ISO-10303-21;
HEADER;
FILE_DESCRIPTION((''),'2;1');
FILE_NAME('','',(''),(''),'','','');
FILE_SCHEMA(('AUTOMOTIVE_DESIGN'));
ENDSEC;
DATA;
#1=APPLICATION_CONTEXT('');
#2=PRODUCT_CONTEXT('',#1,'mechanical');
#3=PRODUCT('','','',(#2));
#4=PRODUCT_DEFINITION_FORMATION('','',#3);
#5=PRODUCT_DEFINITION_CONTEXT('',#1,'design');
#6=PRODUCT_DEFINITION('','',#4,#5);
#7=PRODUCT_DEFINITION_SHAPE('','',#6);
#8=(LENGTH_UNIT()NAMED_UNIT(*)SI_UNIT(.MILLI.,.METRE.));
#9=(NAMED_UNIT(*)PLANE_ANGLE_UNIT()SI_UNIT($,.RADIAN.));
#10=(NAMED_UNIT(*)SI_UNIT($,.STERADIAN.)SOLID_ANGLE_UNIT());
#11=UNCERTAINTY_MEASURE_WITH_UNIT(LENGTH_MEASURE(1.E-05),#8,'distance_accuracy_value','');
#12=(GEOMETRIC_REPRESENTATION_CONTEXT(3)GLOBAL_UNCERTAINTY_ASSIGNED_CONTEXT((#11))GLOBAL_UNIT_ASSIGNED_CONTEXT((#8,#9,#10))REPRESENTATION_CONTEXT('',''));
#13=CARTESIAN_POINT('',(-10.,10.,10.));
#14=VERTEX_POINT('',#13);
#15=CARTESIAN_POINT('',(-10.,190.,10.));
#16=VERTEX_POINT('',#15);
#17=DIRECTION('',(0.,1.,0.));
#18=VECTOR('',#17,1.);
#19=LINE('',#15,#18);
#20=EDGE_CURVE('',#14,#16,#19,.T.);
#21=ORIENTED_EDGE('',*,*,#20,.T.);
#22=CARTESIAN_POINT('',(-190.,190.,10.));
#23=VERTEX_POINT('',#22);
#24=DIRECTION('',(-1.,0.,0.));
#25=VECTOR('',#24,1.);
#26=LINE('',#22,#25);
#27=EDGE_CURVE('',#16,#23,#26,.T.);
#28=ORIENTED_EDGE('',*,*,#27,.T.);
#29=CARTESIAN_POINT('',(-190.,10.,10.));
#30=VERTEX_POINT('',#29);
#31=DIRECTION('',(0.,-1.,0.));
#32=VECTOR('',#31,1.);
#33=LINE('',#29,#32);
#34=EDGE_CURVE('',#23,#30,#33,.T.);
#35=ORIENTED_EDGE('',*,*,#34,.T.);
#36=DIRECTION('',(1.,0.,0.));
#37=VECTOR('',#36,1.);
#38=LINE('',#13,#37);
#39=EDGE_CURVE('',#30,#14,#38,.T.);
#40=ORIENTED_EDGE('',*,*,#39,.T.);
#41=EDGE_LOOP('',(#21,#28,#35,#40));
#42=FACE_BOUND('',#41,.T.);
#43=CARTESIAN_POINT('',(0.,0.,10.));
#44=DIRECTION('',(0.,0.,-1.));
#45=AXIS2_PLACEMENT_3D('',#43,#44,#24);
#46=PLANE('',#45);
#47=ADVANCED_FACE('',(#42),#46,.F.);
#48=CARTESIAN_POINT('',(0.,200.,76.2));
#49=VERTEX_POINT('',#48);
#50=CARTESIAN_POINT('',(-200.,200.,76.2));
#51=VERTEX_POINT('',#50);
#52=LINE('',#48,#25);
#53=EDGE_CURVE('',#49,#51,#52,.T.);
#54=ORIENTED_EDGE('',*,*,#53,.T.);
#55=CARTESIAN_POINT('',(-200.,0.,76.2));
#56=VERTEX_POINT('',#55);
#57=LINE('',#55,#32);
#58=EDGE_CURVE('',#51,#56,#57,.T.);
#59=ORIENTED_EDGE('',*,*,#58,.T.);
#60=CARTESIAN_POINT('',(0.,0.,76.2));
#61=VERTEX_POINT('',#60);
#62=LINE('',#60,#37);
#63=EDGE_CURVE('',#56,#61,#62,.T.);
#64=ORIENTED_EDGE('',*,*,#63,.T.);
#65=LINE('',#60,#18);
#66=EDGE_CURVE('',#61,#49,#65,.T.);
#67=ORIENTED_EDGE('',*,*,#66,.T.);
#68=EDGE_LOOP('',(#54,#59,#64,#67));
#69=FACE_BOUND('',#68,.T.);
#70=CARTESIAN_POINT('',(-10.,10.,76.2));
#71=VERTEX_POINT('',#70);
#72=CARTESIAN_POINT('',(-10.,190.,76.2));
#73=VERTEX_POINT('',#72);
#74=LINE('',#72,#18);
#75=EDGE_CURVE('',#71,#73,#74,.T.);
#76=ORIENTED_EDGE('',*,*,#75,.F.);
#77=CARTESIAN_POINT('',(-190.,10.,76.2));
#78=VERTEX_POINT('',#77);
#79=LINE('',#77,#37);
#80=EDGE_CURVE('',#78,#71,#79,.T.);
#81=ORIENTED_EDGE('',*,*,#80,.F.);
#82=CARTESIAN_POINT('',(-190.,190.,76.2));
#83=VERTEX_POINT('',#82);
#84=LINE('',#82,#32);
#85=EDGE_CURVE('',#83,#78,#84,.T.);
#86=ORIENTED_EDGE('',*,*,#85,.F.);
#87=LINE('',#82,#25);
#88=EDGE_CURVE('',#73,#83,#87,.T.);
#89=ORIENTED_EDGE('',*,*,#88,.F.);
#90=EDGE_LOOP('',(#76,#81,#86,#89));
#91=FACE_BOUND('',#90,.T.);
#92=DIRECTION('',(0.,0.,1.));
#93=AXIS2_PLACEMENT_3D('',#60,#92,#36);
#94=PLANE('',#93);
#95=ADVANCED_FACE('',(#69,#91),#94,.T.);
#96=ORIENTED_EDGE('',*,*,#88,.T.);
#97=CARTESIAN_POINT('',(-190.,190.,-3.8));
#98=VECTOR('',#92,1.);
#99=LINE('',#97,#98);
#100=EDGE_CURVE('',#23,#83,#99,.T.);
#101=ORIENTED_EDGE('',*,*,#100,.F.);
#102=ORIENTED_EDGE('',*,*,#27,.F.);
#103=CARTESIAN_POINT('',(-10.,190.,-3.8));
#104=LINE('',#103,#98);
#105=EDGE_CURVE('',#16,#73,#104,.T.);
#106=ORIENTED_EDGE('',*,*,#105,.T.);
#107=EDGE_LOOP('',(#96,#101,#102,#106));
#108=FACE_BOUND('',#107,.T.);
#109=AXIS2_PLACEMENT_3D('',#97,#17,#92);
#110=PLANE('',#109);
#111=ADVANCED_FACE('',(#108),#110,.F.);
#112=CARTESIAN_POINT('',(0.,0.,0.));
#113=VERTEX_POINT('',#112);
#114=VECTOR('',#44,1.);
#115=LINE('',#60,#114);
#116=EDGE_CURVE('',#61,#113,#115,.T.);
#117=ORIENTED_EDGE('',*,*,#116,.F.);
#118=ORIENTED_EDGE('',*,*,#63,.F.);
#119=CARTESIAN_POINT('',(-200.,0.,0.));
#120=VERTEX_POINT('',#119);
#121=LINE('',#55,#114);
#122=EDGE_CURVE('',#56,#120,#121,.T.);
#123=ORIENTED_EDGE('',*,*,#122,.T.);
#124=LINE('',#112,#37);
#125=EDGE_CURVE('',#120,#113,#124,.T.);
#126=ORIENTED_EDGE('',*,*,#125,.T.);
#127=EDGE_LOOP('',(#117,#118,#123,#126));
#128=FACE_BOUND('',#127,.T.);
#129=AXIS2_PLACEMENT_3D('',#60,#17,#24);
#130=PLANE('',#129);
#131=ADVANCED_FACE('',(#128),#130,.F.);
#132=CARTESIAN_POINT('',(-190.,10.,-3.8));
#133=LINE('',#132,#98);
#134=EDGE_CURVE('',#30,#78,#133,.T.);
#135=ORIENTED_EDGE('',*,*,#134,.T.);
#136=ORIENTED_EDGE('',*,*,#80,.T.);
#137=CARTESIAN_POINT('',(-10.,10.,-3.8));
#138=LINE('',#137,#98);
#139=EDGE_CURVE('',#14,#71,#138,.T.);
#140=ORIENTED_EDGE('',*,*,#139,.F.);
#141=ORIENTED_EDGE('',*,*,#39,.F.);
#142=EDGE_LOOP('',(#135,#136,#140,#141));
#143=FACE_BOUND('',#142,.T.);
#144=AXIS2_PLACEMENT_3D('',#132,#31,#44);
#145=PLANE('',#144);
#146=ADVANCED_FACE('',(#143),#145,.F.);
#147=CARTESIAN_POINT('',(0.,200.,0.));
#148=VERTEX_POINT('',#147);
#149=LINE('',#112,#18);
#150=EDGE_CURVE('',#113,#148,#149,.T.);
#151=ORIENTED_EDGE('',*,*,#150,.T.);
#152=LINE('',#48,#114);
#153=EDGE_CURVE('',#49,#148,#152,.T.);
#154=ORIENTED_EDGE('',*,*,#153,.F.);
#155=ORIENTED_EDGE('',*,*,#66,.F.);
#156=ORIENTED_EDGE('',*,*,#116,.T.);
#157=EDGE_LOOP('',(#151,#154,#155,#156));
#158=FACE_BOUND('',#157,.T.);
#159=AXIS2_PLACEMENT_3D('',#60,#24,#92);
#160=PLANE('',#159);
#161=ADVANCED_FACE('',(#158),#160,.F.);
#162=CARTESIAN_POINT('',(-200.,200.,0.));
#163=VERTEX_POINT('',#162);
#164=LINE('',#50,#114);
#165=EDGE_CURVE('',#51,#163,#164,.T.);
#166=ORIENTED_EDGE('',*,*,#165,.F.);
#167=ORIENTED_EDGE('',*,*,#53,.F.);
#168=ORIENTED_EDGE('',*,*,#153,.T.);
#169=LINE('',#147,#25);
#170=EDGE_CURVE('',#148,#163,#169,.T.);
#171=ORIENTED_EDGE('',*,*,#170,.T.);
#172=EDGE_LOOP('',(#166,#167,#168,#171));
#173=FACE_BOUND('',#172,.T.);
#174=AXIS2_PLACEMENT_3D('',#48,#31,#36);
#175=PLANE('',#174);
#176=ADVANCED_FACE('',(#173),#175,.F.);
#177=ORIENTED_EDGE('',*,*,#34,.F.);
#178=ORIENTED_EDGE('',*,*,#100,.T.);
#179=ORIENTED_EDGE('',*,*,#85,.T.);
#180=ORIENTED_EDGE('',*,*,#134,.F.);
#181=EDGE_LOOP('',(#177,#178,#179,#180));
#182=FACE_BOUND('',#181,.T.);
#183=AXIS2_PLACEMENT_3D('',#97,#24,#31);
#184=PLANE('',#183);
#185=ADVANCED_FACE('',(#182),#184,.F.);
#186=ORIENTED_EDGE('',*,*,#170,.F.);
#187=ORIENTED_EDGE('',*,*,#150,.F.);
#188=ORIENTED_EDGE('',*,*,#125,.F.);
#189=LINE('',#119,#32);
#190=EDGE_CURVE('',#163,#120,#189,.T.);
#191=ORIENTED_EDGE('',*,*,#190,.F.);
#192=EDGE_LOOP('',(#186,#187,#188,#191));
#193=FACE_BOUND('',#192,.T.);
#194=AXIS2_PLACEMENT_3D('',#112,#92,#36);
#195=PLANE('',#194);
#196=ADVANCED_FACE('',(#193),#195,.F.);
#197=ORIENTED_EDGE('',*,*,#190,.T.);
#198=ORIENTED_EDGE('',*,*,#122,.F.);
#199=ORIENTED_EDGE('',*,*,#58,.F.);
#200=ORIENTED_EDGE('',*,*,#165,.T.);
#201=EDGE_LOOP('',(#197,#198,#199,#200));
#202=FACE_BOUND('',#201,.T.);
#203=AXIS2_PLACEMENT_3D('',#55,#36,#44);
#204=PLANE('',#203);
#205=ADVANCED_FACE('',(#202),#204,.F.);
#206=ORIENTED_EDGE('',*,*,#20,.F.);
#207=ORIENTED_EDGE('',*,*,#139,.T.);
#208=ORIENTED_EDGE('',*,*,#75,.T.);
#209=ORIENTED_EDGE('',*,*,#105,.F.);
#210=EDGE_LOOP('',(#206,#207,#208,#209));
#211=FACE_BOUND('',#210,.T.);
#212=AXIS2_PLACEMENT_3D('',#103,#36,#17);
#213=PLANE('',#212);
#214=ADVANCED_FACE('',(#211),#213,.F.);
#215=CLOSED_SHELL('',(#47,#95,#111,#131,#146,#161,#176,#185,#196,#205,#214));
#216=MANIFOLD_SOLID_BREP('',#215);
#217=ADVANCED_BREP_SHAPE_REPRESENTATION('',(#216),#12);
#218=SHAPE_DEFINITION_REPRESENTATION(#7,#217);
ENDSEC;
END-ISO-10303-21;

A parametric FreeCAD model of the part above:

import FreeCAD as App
import Part
import Sketcher
Q = App.Units.Quantity

doc = App.newDocument("Part")
body = doc.addObject("PartDesign::Body", "Body")

# Sketch on XY plane
sketch1 = doc.addObject("Sketcher::SketchObject", "Sketch")
body.addObject(sketch1)
sketch1.AttachmentSupport = (doc.XY_Plane, [""])
sketch1.MapMode = "FlatFace"
sketch1.addGeometry([
    Part.LineSegment(App.Vector(-200, 200, 0), App.Vector(-200, 0, 0)),
    Part.LineSegment(App.Vector(-200, 0, 0), App.Vector(0, 0, 0)),
    Part.LineSegment(App.Vector(0, 0, 0), App.Vector(0, 200, 0)),
    Part.LineSegment(App.Vector(0, 200, 0), App.Vector(-200, 200, 0)),
], False)
sketch1.addConstraint([
    Sketcher.Constraint("Coincident", 0, 2, 1, 1),
    Sketcher.Constraint("Coincident", 1, 2, 2, 1),
    Sketcher.Constraint("Coincident", 2, 2, 3, 1),
    Sketcher.Constraint("Coincident", 3, 2, 0, 1),
    Sketcher.Constraint("Vertical", 0),
    Sketcher.Constraint("Horizontal", 1),
    Sketcher.Constraint("Vertical", 2),
    Sketcher.Constraint("Horizontal", 3),
    Sketcher.Constraint("Coincident", 1, 2, -1, 1),
    Sketcher.Constraint("Equal", 3, 0),
    Sketcher.Constraint("DistanceX", 1, 1, 1, 2, Q("200 mm")),
])
pad1 = doc.addObject("PartDesign::Pad", "Pad")
body.addObject(pad1)
pad1.Profile = sketch1
pad1.Length = 76.2

# Sketch on XY plane
sketch2 = doc.addObject("Sketcher::SketchObject", "Sketch001")
body.addObject(sketch2)
sketch2.AttachmentSupport = (doc.XY_Plane, [""])
sketch2.MapMode = "FlatFace"
sketch2.AttachmentOffset = App.Placement(App.Vector(0, 0, 76.2), App.Rotation())
sketch2.addGeometry([
    Part.LineSegment(App.Vector(-190, 190, 0), App.Vector(-190, 10, 0)),
    Part.LineSegment(App.Vector(-190, 10, 0), App.Vector(-10, 10, 0)),
    Part.LineSegment(App.Vector(-10, 10, 0), App.Vector(-10, 190, 0)),
    Part.LineSegment(App.Vector(-10, 190, 0), App.Vector(-190, 190, 0)),
], False)
sketch2.addConstraint([
    Sketcher.Constraint("Coincident", 0, 2, 1, 1),
    Sketcher.Constraint("Coincident", 1, 2, 2, 1),
    Sketcher.Constraint("Coincident", 2, 2, 3, 1),
    Sketcher.Constraint("Coincident", 3, 2, 0, 1),
    Sketcher.Constraint("Vertical", 0),
    Sketcher.Constraint("Horizontal", 1),
    Sketcher.Constraint("Vertical", 2),
    Sketcher.Constraint("Horizontal", 3),
    Sketcher.Constraint("Equal", 3, 0),
    Sketcher.Constraint("DistanceX", 1, 1, 1, 2, Q("180 mm")),
    Sketcher.Constraint("DistanceX", 0, 2, -1, 1, Q("190 mm")),
    Sketcher.Constraint("DistanceY", -1, 1, 0, 2, Q("10 mm")),
])
pocket1 = doc.addObject("PartDesign::Pocket", "Pocket")
body.addObject(pocket1)
pocket1.Profile = sketch2
pocket1.Length = 80

# Sketch on XY plane
sketch3 = doc.addObject("Sketcher::SketchObject", "Sketch002")
body.addObject(sketch3)
sketch3.AttachmentSupport = (doc.XY_Plane, [""])
sketch3.MapMode = "FlatFace"
sketch3.addGeometry([
    Part.LineSegment(App.Vector(-190, 190, 0), App.Vector(-190, 10, 0)),
    Part.LineSegment(App.Vector(-190, 10, 0), App.Vector(-10, 10, 0)),
    Part.LineSegment(App.Vector(-10, 10, 0), App.Vector(-10, 190, 0)),
    Part.LineSegment(App.Vector(-10, 190, 0), App.Vector(-190, 190, 0)),
], False)
sketch3.addConstraint([
    Sketcher.Constraint("Coincident", 0, 2, 1, 1),
    Sketcher.Constraint("Coincident", 1, 2, 2, 1),
    Sketcher.Constraint("Coincident", 2, 2, 3, 1),
    Sketcher.Constraint("Coincident", 3, 2, 0, 1),
    Sketcher.Constraint("Vertical", 0),
    Sketcher.Constraint("Horizontal", 1),
    Sketcher.Constraint("Vertical", 2),
    Sketcher.Constraint("Horizontal", 3),
    Sketcher.Constraint("Equal", 3, 0),
    Sketcher.Constraint("DistanceX", 1, 1, 1, 2, Q("180 mm")),
    Sketcher.Constraint("DistanceX", 0, 2, -1, 1, Q("190 mm")),
    Sketcher.Constraint("DistanceY", -1, 1, 0, 2, Q("10 mm")),
])
pad2 = doc.addObject("PartDesign::Pad", "Pad001")
body.addObject(pad2)
pad2.Profile = sketch3
pad2.Length = 10

doc.recompute()
